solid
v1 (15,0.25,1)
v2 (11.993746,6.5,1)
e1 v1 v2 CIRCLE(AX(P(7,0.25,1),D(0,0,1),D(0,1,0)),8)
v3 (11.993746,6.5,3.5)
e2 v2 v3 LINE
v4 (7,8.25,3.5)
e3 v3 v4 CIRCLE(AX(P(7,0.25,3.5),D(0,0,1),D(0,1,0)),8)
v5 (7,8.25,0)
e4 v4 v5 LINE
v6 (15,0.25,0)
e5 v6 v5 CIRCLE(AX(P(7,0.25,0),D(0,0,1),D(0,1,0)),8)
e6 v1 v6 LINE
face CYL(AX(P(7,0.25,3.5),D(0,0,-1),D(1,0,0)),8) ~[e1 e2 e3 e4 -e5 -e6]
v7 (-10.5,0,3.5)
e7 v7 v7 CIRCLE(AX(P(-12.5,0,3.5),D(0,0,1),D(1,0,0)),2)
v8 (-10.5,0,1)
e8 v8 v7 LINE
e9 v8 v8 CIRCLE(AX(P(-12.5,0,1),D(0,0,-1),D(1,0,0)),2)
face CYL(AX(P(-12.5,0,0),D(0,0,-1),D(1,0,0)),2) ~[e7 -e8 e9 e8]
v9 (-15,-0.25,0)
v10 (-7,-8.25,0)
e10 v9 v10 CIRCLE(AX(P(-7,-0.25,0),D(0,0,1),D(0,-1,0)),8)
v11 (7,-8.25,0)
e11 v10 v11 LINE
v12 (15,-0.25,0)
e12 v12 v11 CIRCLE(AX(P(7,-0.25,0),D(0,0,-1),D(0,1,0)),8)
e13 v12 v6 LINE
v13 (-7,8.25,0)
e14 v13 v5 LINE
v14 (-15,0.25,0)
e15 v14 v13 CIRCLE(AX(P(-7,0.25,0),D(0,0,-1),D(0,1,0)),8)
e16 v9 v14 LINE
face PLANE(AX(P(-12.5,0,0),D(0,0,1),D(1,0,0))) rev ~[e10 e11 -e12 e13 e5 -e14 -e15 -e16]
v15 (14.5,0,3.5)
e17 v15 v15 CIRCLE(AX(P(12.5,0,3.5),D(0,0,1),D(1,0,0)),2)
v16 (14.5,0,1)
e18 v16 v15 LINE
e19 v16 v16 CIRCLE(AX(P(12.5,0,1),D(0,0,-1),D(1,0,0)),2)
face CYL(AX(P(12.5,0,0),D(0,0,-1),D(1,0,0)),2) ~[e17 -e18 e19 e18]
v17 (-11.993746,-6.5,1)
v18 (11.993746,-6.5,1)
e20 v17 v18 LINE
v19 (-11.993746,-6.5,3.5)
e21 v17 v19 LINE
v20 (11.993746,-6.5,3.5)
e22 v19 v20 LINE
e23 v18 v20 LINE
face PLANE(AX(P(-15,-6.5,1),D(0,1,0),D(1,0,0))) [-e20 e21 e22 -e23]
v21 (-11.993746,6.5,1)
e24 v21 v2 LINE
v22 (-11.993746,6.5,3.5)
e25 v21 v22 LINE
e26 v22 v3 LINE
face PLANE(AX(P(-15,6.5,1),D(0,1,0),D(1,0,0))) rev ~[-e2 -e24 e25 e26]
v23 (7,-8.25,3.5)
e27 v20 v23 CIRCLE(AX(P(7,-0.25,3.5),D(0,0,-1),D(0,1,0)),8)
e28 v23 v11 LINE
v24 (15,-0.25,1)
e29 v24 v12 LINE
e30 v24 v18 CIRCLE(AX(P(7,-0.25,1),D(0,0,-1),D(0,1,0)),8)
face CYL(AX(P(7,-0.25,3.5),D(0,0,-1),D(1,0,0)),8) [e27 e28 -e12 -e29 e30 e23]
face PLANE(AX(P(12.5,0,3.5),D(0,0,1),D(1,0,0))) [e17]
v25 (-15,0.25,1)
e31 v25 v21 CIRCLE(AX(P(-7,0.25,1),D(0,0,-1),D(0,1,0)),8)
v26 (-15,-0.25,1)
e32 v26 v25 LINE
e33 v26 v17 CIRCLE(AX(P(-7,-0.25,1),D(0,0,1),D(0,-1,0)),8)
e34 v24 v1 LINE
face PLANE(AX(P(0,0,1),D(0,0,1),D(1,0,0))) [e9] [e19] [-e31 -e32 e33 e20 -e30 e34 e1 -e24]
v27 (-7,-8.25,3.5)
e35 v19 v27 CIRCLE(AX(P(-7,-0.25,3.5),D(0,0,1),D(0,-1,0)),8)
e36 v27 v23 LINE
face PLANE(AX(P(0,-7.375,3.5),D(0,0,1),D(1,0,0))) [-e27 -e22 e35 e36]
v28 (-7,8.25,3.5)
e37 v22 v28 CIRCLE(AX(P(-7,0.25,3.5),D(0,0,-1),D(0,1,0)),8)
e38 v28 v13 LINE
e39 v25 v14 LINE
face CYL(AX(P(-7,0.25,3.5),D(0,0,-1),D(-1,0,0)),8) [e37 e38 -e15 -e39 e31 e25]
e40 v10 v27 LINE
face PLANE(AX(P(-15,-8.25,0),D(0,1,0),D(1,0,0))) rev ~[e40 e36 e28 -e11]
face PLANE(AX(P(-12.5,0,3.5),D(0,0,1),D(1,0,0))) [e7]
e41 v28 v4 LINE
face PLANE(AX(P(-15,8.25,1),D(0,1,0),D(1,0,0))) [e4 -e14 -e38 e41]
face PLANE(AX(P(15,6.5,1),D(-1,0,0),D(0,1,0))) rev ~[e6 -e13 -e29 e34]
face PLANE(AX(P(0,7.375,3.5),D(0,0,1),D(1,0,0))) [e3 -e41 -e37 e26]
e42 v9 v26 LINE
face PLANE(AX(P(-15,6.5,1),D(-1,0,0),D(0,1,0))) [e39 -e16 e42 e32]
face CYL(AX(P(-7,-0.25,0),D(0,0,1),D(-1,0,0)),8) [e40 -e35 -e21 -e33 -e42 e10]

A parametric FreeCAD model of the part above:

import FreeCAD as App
import Part
import Sketcher
Q = App.Units.Quantity


def edges_at(feature, points):
    """Names of the edges that pass closest to the given points."""
    edges = feature.Shape.Edges
    near = lambda p: min(range(len(edges)), key=lambda i: edges[i].distToShape(Part.Vertex(*p))[0])
    return sorted({f"Edge{near(p) + 1}" for p in points})


def add_polygon(sketch, points):
    """Adds a closed chain of lines whose ends are joined by coincident constraints."""
    first, n = sketch.GeometryCount, len(points)
    for a, b in zip(points, points[1:] + points[:1]):
        sketch.addGeometry(Part.LineSegment(App.Vector(*a, 0), App.Vector(*b, 0)), False)
    for i in range(n):
        sketch.addConstraint(Sketcher.Constraint("Coincident", first + i, 2, first + (i + 1) % n, 1))

doc = App.newDocument("Part")
body = doc.addObject("PartDesign::Body", "Body")

sketch1 = body.newObject("Sketcher::SketchObject", "Sketch")
sketch1.AttachmentSupport = (doc.getObject("XY_Plane"), [""])
sketch1.MapMode = "FlatFace"
add_polygon(sketch1, [(-15, 8), (-15, -8), (15, -8), (15, 8)])
sketch1.addConstraint(Sketcher.Constraint("Vertical", 0))
sketch1.addConstraint(Sketcher.Constraint("Horizontal", 1))
sketch1.addConstraint(Sketcher.Constraint("Vertical", 2))
sketch1.addConstraint(Sketcher.Constraint("Horizontal", 3))
sketch1.addConstraint(Sketcher.Constraint("Symmetric", 0, 2, 2, 2, -1, 1))
sketch1.addConstraint(Sketcher.Constraint("DistanceX", 1, 1, 1, 2, Q("30 mm")))
sketch1.addConstraint(Sketcher.Constraint("DistanceY", 0, 2, 0, 1, Q("16.5 mm")))
pad1 = body.newObject("PartDesign::Pad", "Pad")
pad1.Profile = sketch1
pad1.Length = 1

sketch2 = body.newObject("Sketcher::SketchObject", "Sketch001")
sketch2.AttachmentSupport = (doc.getObject("XY_Plane"), [""])
sketch2.MapMode = "FlatFace"
sketch2.addGeometry(Part.Circle(App.Vector(-12.5, 0, 0), App.Vector(0, 0, 1), 2), False)
sketch2.addGeometry(Part.Circle(App.Vector(12.5, 0, 0), App.Vector(0, 0, 1), 2), False)
sketch2.addConstraint(Sketcher.Constraint("Equal", 0, 1))
sketch2.addConstraint(Sketcher.Constraint("Symmetric", 0, 3, 1, 3, -1, 1))
sketch2.addConstraint(Sketcher.Constraint("PointOnObject", 0, 3, -1))
sketch2.addConstraint(Sketcher.Constraint("Diameter", 0, Q("4 mm")))
sketch2.addConstraint(Sketcher.Constraint("DistanceX", 0, 3, 1, 3, Q("25 mm")))
pad2 = body.newObject("PartDesign::Pad", "Pad001")
pad2.Profile = sketch2
pad2.Length = 3.5

sketch3 = body.newObject("Sketcher::SketchObject", "Sketch002")
sketch3.AttachmentSupport = (doc.getObject("XY_Plane"), [""])
sketch3.MapMode = "FlatFace"
sketch3.AttachmentOffset = App.Placement(App.Vector(0, 0, 1), App.Rotation())
add_polygon(sketch3, [(-15, 8.2), (-15, 6.5), (15, 6.5), (15, 8.2)])
add_polygon(sketch3, [(-15, -6.5), (-15, -8.2), (15, -8.2), (15, -6.5)])
sketch3.addConstraint(Sketcher.Constraint("Vertical", 0))
sketch3.addConstraint(Sketcher.Constraint("Horizontal", 1))
sketch3.addConstraint(Sketcher.Constraint("Vertical", 2))
sketch3.addConstraint(Sketcher.Constraint("Horizontal", 3))
sketch3.addConstraint(Sketcher.Constraint("Vertical", 4))
sketch3.addConstraint(Sketcher.Constraint("Horizontal", 5))
sketch3.addConstraint(Sketcher.Constraint("Vertical", 6))
sketch3.addConstraint(Sketcher.Constraint("Horizontal", 7))
sketch3.addConstraint(Sketcher.Constraint("Symmetric", 2, 2, 4, 2, -1, 1))
sketch3.addConstraint(Sketcher.Constraint("Symmetric", 0, 2, 6, 2, -1, 1))
sketch3.addConstraint(Sketcher.Constraint("Vertical", 3, 2, 4, 2))
sketch3.addConstraint(Sketcher.Constraint("DistanceX", 1, 1, 1, 2, Q("30 mm")))
sketch3.addConstraint(Sketcher.Constraint("DistanceY", 6, 2, 1, 2, Q("13 mm")))
sketch3.addConstraint(Sketcher.Constraint("DistanceY", 0, 2, 0, 1, Q("1.75 mm")))
pad3 = body.newObject("PartDesign::Pad", "Pad002")
pad3.Profile = sketch3
pad3.Length = 2.5
doc.recompute()

fillet = body.newObject("PartDesign::Fillet", "Fillet")
fillet.Base = (pad3, edges_at(pad3, [
    (-15, -8.25, 1.75),
    (-15, 8.25, 1.75),
    (15, -8.25, 1.75),
    (15, 8.25, 1.75),
]))
fillet.Radius = 8

doc.recompute()
